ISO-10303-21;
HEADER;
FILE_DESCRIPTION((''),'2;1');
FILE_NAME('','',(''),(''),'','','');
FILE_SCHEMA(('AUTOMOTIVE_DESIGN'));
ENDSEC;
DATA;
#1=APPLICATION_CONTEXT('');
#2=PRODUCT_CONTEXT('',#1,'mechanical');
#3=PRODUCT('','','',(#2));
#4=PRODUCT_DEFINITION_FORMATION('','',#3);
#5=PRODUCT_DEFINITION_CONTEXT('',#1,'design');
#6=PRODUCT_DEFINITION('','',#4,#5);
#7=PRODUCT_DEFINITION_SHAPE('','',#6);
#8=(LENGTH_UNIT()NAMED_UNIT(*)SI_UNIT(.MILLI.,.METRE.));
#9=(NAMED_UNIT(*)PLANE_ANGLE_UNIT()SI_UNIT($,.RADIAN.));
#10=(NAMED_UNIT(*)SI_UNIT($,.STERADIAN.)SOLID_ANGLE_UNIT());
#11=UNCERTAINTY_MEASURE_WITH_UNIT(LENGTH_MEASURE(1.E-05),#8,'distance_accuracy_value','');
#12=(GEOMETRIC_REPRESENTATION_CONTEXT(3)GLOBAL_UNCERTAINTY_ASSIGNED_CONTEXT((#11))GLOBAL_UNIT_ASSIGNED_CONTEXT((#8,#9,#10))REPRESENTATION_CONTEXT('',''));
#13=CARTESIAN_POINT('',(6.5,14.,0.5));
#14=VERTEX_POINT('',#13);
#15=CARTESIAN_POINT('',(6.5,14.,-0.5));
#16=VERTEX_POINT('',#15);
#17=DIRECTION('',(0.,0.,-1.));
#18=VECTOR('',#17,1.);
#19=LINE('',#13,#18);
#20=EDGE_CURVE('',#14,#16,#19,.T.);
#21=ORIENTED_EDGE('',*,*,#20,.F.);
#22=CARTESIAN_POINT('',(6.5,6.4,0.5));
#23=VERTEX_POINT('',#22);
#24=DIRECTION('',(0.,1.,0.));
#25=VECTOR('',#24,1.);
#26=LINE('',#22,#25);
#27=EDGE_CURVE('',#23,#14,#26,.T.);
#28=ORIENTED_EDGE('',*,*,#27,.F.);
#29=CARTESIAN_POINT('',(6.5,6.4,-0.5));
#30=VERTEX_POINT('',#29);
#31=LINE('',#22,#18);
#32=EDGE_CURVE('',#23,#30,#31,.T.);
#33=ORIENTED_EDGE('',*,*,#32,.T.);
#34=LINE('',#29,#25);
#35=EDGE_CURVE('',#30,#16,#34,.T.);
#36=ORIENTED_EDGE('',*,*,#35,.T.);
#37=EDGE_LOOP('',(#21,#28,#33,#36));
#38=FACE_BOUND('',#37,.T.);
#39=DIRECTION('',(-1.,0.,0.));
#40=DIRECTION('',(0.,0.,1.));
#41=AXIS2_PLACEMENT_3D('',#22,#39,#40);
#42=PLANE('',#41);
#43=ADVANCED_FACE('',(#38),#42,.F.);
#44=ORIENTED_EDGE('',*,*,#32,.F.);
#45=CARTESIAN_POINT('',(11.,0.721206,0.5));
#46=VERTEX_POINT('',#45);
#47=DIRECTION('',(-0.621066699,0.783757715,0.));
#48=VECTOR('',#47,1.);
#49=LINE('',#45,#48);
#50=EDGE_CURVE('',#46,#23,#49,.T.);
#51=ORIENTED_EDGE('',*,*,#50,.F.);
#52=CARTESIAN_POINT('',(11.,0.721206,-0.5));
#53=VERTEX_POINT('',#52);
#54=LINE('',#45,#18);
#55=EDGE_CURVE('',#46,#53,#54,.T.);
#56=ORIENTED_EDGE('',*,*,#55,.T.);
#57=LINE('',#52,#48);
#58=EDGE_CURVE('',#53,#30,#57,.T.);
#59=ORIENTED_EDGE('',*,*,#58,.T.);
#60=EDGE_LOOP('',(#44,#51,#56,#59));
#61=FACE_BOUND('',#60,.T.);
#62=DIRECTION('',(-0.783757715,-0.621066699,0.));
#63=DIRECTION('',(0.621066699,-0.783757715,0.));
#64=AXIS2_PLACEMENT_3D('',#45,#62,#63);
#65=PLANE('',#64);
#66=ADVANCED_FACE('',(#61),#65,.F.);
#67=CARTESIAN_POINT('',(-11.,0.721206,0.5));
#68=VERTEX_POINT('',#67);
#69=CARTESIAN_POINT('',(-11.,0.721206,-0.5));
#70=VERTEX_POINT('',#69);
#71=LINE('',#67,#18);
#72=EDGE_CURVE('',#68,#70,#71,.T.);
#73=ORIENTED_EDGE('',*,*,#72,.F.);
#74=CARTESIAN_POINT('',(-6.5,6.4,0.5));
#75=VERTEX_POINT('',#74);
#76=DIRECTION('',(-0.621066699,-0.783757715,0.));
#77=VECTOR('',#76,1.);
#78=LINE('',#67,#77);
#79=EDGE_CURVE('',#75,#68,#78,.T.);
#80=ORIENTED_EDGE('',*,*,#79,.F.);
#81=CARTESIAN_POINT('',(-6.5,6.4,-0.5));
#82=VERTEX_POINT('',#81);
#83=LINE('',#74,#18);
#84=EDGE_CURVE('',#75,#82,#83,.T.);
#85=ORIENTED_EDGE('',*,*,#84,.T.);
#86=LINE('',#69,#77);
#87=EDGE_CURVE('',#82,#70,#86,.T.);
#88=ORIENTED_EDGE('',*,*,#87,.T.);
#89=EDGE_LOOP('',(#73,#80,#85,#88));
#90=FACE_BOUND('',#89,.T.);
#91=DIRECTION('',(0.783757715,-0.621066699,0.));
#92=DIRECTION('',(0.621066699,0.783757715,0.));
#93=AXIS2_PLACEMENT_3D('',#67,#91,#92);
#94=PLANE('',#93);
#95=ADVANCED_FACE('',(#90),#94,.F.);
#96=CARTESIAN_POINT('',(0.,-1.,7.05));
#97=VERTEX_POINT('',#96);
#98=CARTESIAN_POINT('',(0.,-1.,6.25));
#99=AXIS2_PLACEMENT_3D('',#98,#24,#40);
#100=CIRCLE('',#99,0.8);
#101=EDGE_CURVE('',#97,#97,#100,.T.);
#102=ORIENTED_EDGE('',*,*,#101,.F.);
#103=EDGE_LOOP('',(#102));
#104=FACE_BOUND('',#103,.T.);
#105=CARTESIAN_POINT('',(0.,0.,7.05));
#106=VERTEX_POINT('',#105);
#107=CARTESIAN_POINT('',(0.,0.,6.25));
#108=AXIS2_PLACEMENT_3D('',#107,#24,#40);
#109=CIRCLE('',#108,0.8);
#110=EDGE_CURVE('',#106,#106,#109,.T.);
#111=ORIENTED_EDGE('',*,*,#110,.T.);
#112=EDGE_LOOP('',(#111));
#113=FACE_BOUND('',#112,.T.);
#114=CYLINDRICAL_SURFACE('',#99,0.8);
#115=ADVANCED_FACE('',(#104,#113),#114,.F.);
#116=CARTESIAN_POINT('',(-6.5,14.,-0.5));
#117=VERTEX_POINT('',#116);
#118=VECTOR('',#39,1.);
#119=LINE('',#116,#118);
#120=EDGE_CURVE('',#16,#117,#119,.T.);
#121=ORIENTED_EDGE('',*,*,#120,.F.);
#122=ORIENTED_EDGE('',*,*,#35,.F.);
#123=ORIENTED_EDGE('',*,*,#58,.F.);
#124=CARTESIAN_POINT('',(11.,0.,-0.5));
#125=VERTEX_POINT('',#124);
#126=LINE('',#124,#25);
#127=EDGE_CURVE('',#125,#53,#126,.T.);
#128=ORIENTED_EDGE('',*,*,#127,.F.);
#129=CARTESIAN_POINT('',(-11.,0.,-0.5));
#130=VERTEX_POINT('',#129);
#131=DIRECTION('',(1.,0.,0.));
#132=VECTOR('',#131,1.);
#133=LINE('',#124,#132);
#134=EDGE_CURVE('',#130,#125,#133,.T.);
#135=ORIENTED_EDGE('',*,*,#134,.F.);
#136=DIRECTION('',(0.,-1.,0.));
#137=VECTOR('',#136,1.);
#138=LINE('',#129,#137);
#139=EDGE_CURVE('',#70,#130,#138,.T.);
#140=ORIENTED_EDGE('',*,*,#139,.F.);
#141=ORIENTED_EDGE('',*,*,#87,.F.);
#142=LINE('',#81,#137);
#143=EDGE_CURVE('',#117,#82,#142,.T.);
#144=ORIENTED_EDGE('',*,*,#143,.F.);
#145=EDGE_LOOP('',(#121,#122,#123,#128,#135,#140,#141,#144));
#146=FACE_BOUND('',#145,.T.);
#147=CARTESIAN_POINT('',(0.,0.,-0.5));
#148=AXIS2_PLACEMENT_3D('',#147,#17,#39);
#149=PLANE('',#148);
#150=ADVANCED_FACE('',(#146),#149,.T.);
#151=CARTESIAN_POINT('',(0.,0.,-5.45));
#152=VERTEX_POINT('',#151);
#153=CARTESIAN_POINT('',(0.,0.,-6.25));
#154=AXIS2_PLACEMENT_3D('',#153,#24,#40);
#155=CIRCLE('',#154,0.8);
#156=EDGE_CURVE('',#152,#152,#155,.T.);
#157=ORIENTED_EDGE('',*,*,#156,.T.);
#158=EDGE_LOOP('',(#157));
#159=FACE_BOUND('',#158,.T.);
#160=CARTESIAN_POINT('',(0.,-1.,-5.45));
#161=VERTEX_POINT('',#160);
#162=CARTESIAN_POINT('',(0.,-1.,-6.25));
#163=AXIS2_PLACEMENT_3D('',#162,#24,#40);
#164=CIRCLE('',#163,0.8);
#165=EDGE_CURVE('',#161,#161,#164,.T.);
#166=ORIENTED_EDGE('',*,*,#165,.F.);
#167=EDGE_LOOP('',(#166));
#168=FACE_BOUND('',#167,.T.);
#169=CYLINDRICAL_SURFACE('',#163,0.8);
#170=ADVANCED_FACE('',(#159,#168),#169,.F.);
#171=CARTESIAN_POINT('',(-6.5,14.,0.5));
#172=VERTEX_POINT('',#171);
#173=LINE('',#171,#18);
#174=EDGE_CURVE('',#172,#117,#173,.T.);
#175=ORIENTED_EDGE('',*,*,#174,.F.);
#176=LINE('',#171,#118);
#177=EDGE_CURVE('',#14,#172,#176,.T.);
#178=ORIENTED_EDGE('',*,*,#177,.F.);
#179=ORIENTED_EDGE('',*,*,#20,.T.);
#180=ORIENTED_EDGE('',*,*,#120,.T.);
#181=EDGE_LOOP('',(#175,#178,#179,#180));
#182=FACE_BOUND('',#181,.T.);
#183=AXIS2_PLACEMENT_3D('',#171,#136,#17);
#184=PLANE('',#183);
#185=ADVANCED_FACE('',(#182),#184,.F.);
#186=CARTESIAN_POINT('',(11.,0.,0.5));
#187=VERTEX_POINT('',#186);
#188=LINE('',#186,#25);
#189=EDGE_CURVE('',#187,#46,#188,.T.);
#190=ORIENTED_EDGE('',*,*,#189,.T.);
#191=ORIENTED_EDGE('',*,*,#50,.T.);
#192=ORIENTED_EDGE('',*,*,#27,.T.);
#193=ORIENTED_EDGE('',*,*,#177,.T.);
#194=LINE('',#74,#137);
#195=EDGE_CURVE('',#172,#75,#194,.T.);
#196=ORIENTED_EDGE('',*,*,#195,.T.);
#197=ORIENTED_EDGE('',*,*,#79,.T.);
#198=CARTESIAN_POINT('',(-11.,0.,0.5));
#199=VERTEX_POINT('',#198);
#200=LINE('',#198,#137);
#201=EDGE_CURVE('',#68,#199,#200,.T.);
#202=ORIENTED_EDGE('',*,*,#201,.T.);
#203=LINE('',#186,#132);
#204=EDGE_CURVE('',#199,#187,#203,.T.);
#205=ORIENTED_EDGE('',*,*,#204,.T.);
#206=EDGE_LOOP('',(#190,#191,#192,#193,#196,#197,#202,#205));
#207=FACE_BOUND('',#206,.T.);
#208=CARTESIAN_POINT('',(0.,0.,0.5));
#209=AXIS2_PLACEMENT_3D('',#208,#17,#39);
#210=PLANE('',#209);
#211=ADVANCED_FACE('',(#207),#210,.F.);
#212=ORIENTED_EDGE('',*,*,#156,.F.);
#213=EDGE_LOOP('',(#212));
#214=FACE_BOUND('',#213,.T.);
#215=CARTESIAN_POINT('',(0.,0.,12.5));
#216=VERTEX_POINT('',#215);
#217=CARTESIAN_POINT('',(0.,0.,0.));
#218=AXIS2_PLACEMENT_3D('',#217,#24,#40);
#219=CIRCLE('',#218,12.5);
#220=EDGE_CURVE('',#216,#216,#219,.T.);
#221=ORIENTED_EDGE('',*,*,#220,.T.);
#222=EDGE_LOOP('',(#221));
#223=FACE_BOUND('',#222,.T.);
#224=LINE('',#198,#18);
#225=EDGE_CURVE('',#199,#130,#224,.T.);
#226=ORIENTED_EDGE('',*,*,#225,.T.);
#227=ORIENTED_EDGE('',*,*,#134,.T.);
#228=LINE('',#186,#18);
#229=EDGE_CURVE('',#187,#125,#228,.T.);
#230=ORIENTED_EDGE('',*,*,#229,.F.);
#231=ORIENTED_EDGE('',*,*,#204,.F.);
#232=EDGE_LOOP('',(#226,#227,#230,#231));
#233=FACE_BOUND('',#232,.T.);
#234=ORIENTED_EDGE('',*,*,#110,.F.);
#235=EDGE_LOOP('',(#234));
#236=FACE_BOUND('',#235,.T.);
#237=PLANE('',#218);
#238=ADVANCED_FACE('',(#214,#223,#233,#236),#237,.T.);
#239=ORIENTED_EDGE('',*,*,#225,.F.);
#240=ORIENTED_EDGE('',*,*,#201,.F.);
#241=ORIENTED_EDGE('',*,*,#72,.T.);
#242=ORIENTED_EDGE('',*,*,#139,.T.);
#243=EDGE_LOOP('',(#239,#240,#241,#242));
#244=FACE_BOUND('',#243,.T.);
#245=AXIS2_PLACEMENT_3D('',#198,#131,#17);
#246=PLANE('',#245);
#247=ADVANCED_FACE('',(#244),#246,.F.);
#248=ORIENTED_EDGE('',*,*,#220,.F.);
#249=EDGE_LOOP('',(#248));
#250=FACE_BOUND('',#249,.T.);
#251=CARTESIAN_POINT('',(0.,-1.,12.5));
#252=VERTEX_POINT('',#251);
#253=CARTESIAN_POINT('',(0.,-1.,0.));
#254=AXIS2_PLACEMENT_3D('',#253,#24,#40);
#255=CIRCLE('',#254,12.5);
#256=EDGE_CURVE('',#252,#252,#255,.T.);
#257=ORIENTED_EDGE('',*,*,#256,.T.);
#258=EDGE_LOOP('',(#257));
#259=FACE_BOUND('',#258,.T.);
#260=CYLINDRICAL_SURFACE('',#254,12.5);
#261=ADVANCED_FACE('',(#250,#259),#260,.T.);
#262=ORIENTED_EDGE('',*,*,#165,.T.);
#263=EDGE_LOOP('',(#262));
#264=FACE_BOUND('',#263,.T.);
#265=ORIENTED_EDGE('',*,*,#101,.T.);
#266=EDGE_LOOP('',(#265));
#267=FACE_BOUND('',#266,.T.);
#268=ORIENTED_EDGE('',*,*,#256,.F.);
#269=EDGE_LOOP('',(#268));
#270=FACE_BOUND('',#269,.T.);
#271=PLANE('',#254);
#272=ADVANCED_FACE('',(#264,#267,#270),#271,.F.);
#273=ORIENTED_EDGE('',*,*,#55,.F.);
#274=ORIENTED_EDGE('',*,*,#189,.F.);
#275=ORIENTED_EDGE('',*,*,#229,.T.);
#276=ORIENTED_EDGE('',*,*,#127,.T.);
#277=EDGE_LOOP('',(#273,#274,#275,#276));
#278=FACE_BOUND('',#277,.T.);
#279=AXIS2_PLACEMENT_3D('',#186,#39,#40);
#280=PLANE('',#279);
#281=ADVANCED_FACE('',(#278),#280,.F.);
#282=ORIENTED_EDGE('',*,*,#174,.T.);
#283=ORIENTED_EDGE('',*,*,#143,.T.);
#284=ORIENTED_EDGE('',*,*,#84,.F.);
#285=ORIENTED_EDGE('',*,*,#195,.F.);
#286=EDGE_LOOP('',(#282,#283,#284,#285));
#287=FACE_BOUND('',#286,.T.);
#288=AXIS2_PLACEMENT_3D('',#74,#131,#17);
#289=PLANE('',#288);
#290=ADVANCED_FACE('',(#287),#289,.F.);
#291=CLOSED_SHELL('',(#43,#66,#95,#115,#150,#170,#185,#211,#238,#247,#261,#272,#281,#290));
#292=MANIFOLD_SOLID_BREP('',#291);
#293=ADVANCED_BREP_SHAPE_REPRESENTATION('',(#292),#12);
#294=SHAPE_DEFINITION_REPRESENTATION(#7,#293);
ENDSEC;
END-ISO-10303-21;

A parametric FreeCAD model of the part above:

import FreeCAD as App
import Part
import Sketcher

V = App.Vector

doc = App.newDocument("Part")
params = doc.addObject("Spreadsheet::Sheet", "Params")
for row, (alias, value) in enumerate([
    ("sketch1_diameter", "25 mm"),
    ("sketch1_diameter2", "1.6 mm"),
    ("pad1_length", "1 mm"),
    ("sketch2_width", "22 mm"),
    ("sketch2_width2", "13 mm"),
    ("sketch2_height", "7.6 mm"),
    ("pad2_length", "1 mm"),
], start=1):
    params.set(f"A{row}", alias)
    params.set(f"B{row}", "=" + value)
    params.setAlias(f"B{row}", alias)

body = doc.addObject("PartDesign::Body", "Body")

sketch1 = body.newObject("Sketcher::SketchObject", "Sketch")
sketch1.AttachmentSupport = (doc.getObject("XZ_Plane"), [""])
sketch1.MapMode = "FlatFace"
sketch1.addGeometry([
    Part.Circle(V(0, 0, 0), V(0, 0, 1), 12.5),
    Part.Circle(V(0, -6.2, 0), V(0, 0, 1), 0.8),
    Part.Circle(V(0, 6.2, 0), V(0, 0, 1), 0.8),
], False)
sketch1.addConstraint([
    Sketcher.Constraint("Coincident", 0, 3, -1, 1),
    Sketcher.Constraint("Equal", 1, 2),
    Sketcher.Constraint("Symmetric", 1, 3, 2, 3, -1, 1),
    Sketcher.Constraint("PointOnObject", 1, 3, -2),
    Sketcher.Constraint("Diameter", 0, 25.0),
    Sketcher.Constraint("Diameter", 1, 1.6),
    Sketcher.Constraint("DistanceY", 1, 3, 2, 3, 12.5),
])
sketch1.setExpression("Constraints[4]", "Params.sketch1_diameter")
sketch1.setExpression("Constraints[5]", "Params.sketch1_diameter2")
pad1 = body.newObject("PartDesign::Pad", "Pad")
pad1.Profile = sketch1
pad1.setExpression("Length", "Params.pad1_length")

sketch2 = body.newObject("Sketcher::SketchObject", "Sketch001")
sketch2.AttachmentSupport = (doc.getObject("XY_Plane"), [""])
sketch2.MapMode = "FlatFace"
sketch2.addGeometry([
    Part.LineSegment(V(-11, 0.7, 0), V(-11, 0, 0)),
    Part.LineSegment(V(-11, 0, 0), V(11, 0, 0)),
    Part.LineSegment(V(11, 0, 0), V(11, 0.7, 0)),
    Part.LineSegment(V(11, 0.7, 0), V(6.5, 6.4, 0)),
    Part.LineSegment(V(6.5, 6.4, 0), V(6.5, 14, 0)),
    Part.LineSegment(V(6.5, 14, 0), V(-6.5, 14, 0)),
    Part.LineSegment(V(-6.5, 14, 0), V(-6.5, 6.4, 0)),
    Part.LineSegment(V(-6.5, 6.4, 0), V(-11, 0.7, 0)),
], False)
sketch2.addConstraint([
    Sketcher.Constraint("Coincident", 0, 2, 1, 1),
    Sketcher.Constraint("Coincident", 1, 2, 2, 1),
    Sketcher.Constraint("Coincident", 2, 2, 3, 1),
    Sketcher.Constraint("Coincident", 3, 2, 4, 1),
    Sketcher.Constraint("Coincident", 4, 2, 5, 1),
    Sketcher.Constraint("Coincident", 5, 2, 6, 1),
    Sketcher.Constraint("Coincident", 6, 2, 7, 1),
    Sketcher.Constraint("Coincident", 7, 2, 0, 1),
    Sketcher.Constraint("Vertical", 0),
    Sketcher.Constraint("Horizontal", 1),
    Sketcher.Constraint("Vertical", 2),
    Sketcher.Constraint("Vertical", 4),
    Sketcher.Constraint("Horizontal", 5),
    Sketcher.Constraint("Vertical", 6),
    Sketcher.Constraint("Symmetric", 0, 2, 1, 2, -1, 1),
    Sketcher.Constraint("Symmetric", 3, 2, 6, 2, -2),
    Sketcher.Constraint("Horizontal", 2, 2, 7, 2),
    Sketcher.Constraint("DistanceX", 1, 1, 1, 2, 22.0),
    Sketcher.Constraint("DistanceX", 5, 2, 5, 1, 13.0),
    Sketcher.Constraint("DistanceY", 4, 1, 4, 2, 7.6),
    Sketcher.Constraint("DistanceY", -1, 1, 4, 2, 14.0),
    Sketcher.Constraint("Distance", 3, 7.245599),
])
sketch2.setExpression("Constraints[17]", "Params.sketch2_width")
sketch2.setExpression("Constraints[18]", "Params.sketch2_width2")
sketch2.setExpression("Constraints[19]", "Params.sketch2_height")
pad2 = body.newObject("PartDesign::Pad", "Pad001")
pad2.Profile = sketch2
pad2.setExpression("Length", "Params.pad2_length")
pad2.Midplane = True

doc.recompute()
